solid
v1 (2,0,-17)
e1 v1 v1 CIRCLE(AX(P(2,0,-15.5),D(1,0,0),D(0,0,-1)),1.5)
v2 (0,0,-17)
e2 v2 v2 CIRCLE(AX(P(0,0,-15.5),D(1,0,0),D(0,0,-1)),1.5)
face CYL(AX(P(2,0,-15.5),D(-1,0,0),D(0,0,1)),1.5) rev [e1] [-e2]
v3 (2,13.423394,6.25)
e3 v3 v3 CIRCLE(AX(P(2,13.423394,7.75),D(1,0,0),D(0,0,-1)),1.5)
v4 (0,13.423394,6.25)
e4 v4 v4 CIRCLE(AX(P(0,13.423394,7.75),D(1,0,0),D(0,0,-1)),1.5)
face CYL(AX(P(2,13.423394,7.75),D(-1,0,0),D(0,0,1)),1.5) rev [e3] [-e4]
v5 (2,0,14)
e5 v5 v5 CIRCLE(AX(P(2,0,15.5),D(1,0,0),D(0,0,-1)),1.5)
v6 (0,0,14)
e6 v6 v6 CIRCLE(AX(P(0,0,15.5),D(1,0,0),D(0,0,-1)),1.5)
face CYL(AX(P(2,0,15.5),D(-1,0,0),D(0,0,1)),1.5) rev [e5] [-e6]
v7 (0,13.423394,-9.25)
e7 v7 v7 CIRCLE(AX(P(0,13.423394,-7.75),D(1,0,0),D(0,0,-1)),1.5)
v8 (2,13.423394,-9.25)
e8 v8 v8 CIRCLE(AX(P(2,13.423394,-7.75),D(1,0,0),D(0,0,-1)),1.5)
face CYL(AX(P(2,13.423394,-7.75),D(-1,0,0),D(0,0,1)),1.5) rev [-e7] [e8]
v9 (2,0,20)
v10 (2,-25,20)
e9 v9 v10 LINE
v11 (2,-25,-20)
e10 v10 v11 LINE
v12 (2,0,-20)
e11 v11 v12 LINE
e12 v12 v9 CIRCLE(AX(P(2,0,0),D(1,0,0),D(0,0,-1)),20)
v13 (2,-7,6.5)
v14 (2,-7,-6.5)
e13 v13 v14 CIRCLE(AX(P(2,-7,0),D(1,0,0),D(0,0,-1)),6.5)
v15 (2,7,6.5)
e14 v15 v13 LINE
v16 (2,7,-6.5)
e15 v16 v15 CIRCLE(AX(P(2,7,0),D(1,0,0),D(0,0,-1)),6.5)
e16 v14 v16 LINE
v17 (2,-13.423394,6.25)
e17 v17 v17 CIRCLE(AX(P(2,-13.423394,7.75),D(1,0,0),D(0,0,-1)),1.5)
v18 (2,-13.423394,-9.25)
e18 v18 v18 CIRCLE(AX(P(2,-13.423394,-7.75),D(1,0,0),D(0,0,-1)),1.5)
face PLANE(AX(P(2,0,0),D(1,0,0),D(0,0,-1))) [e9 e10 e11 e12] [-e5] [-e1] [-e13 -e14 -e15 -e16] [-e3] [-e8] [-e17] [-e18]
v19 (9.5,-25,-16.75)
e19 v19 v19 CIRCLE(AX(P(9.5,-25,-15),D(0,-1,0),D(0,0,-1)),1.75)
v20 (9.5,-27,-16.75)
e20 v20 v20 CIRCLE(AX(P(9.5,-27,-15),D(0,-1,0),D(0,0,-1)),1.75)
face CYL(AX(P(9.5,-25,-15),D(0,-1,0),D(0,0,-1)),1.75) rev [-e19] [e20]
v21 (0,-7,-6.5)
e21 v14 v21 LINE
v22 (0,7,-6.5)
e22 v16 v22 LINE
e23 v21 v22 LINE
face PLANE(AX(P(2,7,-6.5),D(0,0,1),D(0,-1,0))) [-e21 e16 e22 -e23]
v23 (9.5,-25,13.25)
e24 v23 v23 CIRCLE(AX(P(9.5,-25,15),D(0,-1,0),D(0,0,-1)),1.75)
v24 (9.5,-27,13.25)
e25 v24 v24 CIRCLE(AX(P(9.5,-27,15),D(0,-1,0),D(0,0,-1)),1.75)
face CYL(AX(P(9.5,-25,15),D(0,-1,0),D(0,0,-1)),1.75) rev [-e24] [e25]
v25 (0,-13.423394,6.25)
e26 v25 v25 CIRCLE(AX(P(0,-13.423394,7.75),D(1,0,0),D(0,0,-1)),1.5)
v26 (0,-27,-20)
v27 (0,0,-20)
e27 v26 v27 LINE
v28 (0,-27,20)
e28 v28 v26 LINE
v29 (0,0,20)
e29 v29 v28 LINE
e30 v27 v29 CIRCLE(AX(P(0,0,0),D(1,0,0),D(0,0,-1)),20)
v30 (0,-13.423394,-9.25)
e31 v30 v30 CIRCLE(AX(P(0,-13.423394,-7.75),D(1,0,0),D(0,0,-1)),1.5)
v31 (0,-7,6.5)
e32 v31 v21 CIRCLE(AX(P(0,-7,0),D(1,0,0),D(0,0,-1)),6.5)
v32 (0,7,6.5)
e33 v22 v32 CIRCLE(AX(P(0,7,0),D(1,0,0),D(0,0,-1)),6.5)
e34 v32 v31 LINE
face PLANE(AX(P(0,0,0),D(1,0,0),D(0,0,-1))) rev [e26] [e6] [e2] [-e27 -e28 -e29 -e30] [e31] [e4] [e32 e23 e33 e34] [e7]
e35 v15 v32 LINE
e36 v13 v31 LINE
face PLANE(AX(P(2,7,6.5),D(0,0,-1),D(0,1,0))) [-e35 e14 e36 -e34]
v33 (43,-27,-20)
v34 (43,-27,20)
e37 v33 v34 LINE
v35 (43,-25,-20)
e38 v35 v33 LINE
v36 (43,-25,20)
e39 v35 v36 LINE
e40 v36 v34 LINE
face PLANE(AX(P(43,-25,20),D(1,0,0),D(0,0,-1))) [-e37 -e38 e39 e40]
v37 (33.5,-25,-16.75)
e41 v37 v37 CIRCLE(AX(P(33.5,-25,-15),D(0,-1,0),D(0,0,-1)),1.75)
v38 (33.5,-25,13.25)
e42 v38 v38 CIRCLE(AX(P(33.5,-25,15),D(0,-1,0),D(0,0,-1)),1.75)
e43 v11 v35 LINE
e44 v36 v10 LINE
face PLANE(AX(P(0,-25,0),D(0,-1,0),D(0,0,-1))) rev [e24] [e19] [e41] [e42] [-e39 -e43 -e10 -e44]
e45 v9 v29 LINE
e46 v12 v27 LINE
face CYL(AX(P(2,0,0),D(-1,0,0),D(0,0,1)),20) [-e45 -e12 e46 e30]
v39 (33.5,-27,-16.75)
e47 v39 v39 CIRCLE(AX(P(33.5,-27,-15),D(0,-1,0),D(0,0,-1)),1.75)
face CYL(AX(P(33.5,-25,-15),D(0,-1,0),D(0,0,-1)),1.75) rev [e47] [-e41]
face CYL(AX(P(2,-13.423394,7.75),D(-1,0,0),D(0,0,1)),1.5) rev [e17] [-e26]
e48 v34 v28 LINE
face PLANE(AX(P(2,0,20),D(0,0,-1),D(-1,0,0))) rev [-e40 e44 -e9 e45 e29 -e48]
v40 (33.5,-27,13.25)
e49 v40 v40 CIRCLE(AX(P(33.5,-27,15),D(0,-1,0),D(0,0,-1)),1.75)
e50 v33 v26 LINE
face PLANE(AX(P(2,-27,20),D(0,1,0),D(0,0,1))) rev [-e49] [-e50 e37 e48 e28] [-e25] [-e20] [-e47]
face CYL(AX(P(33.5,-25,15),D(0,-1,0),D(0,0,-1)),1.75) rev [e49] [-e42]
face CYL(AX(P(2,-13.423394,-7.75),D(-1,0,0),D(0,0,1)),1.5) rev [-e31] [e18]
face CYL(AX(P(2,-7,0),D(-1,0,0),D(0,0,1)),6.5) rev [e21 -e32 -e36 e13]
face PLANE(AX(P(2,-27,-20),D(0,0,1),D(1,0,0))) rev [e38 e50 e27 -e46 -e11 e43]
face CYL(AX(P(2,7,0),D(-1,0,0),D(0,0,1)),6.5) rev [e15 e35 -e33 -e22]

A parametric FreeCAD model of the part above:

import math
import FreeCAD as App
import Part
import Sketcher
Q = App.Units.Quantity


def add_polygon(sketch, points):
    """Adds a closed chain of lines whose ends are joined by coincident constraints."""
    first, n = sketch.GeometryCount, len(points)
    for a, b in zip(points, points[1:] + points[:1]):
        sketch.addGeometry(Part.LineSegment(App.Vector(*a, 0), App.Vector(*b, 0)), False)
    for i in range(n):
        sketch.addConstraint(Sketcher.Constraint("Coincident", first + i, 2, first + (i + 1) % n, 1))

doc = App.newDocument("Part")
body = doc.addObject("PartDesign::Body", "Body")

# Sketch on YZ plane
sketch1 = doc.addObject("Sketcher::SketchObject", "Sketch")
body.addObject(sketch1)
sketch1.AttachmentSupport = (doc.YZ_Plane, [""])
sketch1.MapMode = "FlatFace"
sketch1.addGeometry(Part.LineSegment(App.Vector(0, 20, 0), App.Vector(-27, 20, 0)), False)
sketch1.addGeometry(Part.LineSegment(App.Vector(-27, 20, 0), App.Vector(-27, -20, 0)), False)
sketch1.addGeometry(Part.LineSegment(App.Vector(-27, -20, 0), App.Vector(0, -20, 0)), False)
sketch1.addGeometry(Part.ArcOfCircle(Part.Circle(App.Vector(0, 0, 0), App.Vector(0, 0, 1), 20), math.radians(-90), math.radians(90)), False)
sketch1.addGeometry(Part.Circle(App.Vector(-13.4, 7.8, 0), App.Vector(0, 0, 1), 1.5), False)
sketch1.addGeometry(Part.Circle(App.Vector(-13.4, -7.8, 0), App.Vector(0, 0, 1), 1.5), False)
sketch1.addGeometry(Part.Circle(App.Vector(0, 15.5, 0), App.Vector(0, 0, 1), 1.5), False)
sketch1.addGeometry(Part.Circle(App.Vector(13.4, 7.8, 0), App.Vector(0, 0, 1), 1.5), False)
sketch1.addGeometry(Part.ArcOfCircle(Part.Circle(App.Vector(7, 0, 0), App.Vector(0, 0, 1), 6.5), math.radians(-90), math.radians(90)), False)
sketch1.addGeometry(Part.LineSegment(App.Vector(7, -6.5, 0), App.Vector(-7, -6.5, 0)), False)
sketch1.addGeometry(Part.ArcOfCircle(Part.Circle(App.Vector(-7, 0, 0), App.Vector(0, 0, 1), 6.5), math.radians(90), math.radians(270)), False)
sketch1.addGeometry(Part.LineSegment(App.Vector(-7, 6.5, 0), App.Vector(7, 6.5, 0)), False)
sketch1.addGeometry(Part.Circle(App.Vector(0, -15.5, 0), App.Vector(0, 0, 1), 1.5), False)
sketch1.addGeometry(Part.Circle(App.Vector(13.4, -7.8, 0), App.Vector(0, 0, 1), 1.5), False)
sketch1.addConstraint(Sketcher.Constraint("Coincident", 0, 2, 1, 1))
sketch1.addConstraint(Sketcher.Constraint("Coincident", 1, 2, 2, 1))
sketch1.addConstraint(Sketcher.Constraint("Tangent", 2, 2, 3, 1))
sketch1.addConstraint(Sketcher.Constraint("Tangent", 3, 2, 0, 1))
sketch1.addConstraint(Sketcher.Constraint("Tangent", 8, 1, 9, 1))
sketch1.addConstraint(Sketcher.Constraint("Tangent", 9, 2, 10, 2))
sketch1.addConstraint(Sketcher.Constraint("Tangent", 10, 1, 11, 1))
sketch1.addConstraint(Sketcher.Constraint("Tangent", 11, 2, 8, 2))
sketch1.addConstraint(Sketcher.Constraint("Horizontal", 0))
sketch1.addConstraint(Sketcher.Constraint("Vertical", 1))
sketch1.addConstraint(Sketcher.Constraint("Horizontal", 2))
sketch1.addConstraint(Sketcher.Constraint("Horizontal", 9))
sketch1.addConstraint(Sketcher.Constraint("Horizontal", 11))
sketch1.addConstraint(Sketcher.Constraint("Coincident", 3, 3, -1, 1))
sketch1.addConstraint(Sketcher.Constraint("Equal", 4, 5))
sketch1.addConstraint(Sketcher.Constraint("Equal", 5, 6))
sketch1.addConstraint(Sketcher.Constraint("Equal", 6, 7))
sketch1.addConstraint(Sketcher.Constraint("Equal", 7, 12))
sketch1.addConstraint(Sketcher.Constraint("Equal", 12, 13))
sketch1.addConstraint(Sketcher.Constraint("Symmetric", 5, 3, 7, 3, -1, 1))
sketch1.addConstraint(Sketcher.Constraint("Symmetric", 8, 3, 10, 3, -1, 1))
sketch1.addConstraint(Sketcher.Constraint("Symmetric", 6, 3, 12, 3, -1, 1))
sketch1.addConstraint(Sketcher.Constraint("Symmetric", 4, 3, 13, 3, -1, 1))
sketch1.addConstraint(Sketcher.Constraint("Symmetric", 4, 3, 7, 3, -2))
sketch1.addConstraint(Sketcher.Constraint("PointOnObject", 6, 3, -2))
sketch1.addConstraint(Sketcher.Constraint("Diameter", 4, Q("3 mm")))
sketch1.addConstraint(Sketcher.Constraint("Radius", 3, Q("20 mm")))
sketch1.addConstraint(Sketcher.Constraint("Radius", 8, Q("6.5 mm")))
sketch1.addConstraint(Sketcher.Constraint("DistanceX", 0, 2, 0, 1, Q("27 mm")))
sketch1.addConstraint(Sketcher.Constraint("DistanceX", 9, 2, 9, 1, Q("14 mm")))
sketch1.addConstraint(Sketcher.Constraint("DistanceY", 12, 3, 8, 1, Q("9 mm")))
sketch1.addConstraint(Sketcher.Constraint("DistanceY", 5, 3, 4, 3, Q("15.5 mm")))
sketch1.addConstraint(Sketcher.Constraint("DistanceX", 4, 3, -1, 1, Q("13.423394 mm")))
pad1 = doc.addObject("PartDesign::Pad", "Pad")
body.addObject(pad1)
pad1.Profile = sketch1
pad1.Length = 2

# Sketch on XZ plane
sketch2 = doc.addObject("Sketcher::SketchObject", "Sketch001")
body.addObject(sketch2)
sketch2.AttachmentSupport = (doc.XZ_Plane, [""])
sketch2.MapMode = "FlatFace"
sketch2.AttachmentOffset = App.Placement(App.Vector(0, 0, 27), App.Rotation())
add_polygon(sketch2, [(0, 20), (0, -20), (43, -20), (43, 20)])  # lines 0-3
sketch2.addGeometry(Part.Circle(App.Vector(9.5, -15, 0), App.Vector(0, 0, 1), 1.8), False)  # 4
sketch2.addGeometry(Part.Circle(App.Vector(33.5, -15, 0), App.Vector(0, 0, 1), 1.8), False)  # 5
sketch2.addGeometry(Part.Circle(App.Vector(9.5, 15, 0), App.Vector(0, 0, 1), 1.8), False)  # 6
sketch2.addGeometry(Part.Circle(App.Vector(33.5, 15, 0), App.Vector(0, 0, 1), 1.8), False)  # 7
sketch2.addConstraint(Sketcher.Constraint("Vertical", 0))
sketch2.addConstraint(Sketcher.Constraint("Horizontal", 1))
sketch2.addConstraint(Sketcher.Constraint("Vertical", 2))
sketch2.addConstraint(Sketcher.Constraint("Horizontal", 3))
sketch2.addConstraint(Sketcher.Constraint("Equal", 4, 5))
sketch2.addConstraint(Sketcher.Constraint("Equal", 5, 6))
sketch2.addConstraint(Sketcher.Constraint("Equal", 6, 7))
sketch2.addConstraint(Sketcher.Constraint("Symmetric", 0, 2, 3, 2, -1, 1))
sketch2.addConstraint(Sketcher.Constraint("Symmetric", 4, 3, 6, 3, -1))
sketch2.addConstraint(Sketcher.Constraint("Symmetric", 5, 3, 7, 3, -1))
sketch2.addConstraint(Sketcher.Constraint("Horizontal", 4, 3, 5, 3))
sketch2.addConstraint(Sketcher.Constraint("Diameter", 4, Q("3.5 mm")))
sketch2.addConstraint(Sketcher.Constraint("DistanceX", 1, 1, 1, 2, Q("43 mm")))
sketch2.addConstraint(Sketcher.Constraint("DistanceY", 0, 2, 0, 1, Q("40 mm")))
sketch2.addConstraint(Sketcher.Constraint("DistanceY", 4, 3, -1, 1, Q("15 mm")))
sketch2.addConstraint(Sketcher.Constraint("DistanceX", 4, 3, 5, 3, Q("24 mm")))
sketch2.addConstraint(Sketcher.Constraint("DistanceX", -1, 1, 4, 3, Q("9.5 mm")))
pad2 = doc.addObject("PartDesign::Pad", "Pad001")
body.addObject(pad2)
pad2.Profile = sketch2
pad2.Length = 2
pad2.Reversed = True

doc.recompute()
